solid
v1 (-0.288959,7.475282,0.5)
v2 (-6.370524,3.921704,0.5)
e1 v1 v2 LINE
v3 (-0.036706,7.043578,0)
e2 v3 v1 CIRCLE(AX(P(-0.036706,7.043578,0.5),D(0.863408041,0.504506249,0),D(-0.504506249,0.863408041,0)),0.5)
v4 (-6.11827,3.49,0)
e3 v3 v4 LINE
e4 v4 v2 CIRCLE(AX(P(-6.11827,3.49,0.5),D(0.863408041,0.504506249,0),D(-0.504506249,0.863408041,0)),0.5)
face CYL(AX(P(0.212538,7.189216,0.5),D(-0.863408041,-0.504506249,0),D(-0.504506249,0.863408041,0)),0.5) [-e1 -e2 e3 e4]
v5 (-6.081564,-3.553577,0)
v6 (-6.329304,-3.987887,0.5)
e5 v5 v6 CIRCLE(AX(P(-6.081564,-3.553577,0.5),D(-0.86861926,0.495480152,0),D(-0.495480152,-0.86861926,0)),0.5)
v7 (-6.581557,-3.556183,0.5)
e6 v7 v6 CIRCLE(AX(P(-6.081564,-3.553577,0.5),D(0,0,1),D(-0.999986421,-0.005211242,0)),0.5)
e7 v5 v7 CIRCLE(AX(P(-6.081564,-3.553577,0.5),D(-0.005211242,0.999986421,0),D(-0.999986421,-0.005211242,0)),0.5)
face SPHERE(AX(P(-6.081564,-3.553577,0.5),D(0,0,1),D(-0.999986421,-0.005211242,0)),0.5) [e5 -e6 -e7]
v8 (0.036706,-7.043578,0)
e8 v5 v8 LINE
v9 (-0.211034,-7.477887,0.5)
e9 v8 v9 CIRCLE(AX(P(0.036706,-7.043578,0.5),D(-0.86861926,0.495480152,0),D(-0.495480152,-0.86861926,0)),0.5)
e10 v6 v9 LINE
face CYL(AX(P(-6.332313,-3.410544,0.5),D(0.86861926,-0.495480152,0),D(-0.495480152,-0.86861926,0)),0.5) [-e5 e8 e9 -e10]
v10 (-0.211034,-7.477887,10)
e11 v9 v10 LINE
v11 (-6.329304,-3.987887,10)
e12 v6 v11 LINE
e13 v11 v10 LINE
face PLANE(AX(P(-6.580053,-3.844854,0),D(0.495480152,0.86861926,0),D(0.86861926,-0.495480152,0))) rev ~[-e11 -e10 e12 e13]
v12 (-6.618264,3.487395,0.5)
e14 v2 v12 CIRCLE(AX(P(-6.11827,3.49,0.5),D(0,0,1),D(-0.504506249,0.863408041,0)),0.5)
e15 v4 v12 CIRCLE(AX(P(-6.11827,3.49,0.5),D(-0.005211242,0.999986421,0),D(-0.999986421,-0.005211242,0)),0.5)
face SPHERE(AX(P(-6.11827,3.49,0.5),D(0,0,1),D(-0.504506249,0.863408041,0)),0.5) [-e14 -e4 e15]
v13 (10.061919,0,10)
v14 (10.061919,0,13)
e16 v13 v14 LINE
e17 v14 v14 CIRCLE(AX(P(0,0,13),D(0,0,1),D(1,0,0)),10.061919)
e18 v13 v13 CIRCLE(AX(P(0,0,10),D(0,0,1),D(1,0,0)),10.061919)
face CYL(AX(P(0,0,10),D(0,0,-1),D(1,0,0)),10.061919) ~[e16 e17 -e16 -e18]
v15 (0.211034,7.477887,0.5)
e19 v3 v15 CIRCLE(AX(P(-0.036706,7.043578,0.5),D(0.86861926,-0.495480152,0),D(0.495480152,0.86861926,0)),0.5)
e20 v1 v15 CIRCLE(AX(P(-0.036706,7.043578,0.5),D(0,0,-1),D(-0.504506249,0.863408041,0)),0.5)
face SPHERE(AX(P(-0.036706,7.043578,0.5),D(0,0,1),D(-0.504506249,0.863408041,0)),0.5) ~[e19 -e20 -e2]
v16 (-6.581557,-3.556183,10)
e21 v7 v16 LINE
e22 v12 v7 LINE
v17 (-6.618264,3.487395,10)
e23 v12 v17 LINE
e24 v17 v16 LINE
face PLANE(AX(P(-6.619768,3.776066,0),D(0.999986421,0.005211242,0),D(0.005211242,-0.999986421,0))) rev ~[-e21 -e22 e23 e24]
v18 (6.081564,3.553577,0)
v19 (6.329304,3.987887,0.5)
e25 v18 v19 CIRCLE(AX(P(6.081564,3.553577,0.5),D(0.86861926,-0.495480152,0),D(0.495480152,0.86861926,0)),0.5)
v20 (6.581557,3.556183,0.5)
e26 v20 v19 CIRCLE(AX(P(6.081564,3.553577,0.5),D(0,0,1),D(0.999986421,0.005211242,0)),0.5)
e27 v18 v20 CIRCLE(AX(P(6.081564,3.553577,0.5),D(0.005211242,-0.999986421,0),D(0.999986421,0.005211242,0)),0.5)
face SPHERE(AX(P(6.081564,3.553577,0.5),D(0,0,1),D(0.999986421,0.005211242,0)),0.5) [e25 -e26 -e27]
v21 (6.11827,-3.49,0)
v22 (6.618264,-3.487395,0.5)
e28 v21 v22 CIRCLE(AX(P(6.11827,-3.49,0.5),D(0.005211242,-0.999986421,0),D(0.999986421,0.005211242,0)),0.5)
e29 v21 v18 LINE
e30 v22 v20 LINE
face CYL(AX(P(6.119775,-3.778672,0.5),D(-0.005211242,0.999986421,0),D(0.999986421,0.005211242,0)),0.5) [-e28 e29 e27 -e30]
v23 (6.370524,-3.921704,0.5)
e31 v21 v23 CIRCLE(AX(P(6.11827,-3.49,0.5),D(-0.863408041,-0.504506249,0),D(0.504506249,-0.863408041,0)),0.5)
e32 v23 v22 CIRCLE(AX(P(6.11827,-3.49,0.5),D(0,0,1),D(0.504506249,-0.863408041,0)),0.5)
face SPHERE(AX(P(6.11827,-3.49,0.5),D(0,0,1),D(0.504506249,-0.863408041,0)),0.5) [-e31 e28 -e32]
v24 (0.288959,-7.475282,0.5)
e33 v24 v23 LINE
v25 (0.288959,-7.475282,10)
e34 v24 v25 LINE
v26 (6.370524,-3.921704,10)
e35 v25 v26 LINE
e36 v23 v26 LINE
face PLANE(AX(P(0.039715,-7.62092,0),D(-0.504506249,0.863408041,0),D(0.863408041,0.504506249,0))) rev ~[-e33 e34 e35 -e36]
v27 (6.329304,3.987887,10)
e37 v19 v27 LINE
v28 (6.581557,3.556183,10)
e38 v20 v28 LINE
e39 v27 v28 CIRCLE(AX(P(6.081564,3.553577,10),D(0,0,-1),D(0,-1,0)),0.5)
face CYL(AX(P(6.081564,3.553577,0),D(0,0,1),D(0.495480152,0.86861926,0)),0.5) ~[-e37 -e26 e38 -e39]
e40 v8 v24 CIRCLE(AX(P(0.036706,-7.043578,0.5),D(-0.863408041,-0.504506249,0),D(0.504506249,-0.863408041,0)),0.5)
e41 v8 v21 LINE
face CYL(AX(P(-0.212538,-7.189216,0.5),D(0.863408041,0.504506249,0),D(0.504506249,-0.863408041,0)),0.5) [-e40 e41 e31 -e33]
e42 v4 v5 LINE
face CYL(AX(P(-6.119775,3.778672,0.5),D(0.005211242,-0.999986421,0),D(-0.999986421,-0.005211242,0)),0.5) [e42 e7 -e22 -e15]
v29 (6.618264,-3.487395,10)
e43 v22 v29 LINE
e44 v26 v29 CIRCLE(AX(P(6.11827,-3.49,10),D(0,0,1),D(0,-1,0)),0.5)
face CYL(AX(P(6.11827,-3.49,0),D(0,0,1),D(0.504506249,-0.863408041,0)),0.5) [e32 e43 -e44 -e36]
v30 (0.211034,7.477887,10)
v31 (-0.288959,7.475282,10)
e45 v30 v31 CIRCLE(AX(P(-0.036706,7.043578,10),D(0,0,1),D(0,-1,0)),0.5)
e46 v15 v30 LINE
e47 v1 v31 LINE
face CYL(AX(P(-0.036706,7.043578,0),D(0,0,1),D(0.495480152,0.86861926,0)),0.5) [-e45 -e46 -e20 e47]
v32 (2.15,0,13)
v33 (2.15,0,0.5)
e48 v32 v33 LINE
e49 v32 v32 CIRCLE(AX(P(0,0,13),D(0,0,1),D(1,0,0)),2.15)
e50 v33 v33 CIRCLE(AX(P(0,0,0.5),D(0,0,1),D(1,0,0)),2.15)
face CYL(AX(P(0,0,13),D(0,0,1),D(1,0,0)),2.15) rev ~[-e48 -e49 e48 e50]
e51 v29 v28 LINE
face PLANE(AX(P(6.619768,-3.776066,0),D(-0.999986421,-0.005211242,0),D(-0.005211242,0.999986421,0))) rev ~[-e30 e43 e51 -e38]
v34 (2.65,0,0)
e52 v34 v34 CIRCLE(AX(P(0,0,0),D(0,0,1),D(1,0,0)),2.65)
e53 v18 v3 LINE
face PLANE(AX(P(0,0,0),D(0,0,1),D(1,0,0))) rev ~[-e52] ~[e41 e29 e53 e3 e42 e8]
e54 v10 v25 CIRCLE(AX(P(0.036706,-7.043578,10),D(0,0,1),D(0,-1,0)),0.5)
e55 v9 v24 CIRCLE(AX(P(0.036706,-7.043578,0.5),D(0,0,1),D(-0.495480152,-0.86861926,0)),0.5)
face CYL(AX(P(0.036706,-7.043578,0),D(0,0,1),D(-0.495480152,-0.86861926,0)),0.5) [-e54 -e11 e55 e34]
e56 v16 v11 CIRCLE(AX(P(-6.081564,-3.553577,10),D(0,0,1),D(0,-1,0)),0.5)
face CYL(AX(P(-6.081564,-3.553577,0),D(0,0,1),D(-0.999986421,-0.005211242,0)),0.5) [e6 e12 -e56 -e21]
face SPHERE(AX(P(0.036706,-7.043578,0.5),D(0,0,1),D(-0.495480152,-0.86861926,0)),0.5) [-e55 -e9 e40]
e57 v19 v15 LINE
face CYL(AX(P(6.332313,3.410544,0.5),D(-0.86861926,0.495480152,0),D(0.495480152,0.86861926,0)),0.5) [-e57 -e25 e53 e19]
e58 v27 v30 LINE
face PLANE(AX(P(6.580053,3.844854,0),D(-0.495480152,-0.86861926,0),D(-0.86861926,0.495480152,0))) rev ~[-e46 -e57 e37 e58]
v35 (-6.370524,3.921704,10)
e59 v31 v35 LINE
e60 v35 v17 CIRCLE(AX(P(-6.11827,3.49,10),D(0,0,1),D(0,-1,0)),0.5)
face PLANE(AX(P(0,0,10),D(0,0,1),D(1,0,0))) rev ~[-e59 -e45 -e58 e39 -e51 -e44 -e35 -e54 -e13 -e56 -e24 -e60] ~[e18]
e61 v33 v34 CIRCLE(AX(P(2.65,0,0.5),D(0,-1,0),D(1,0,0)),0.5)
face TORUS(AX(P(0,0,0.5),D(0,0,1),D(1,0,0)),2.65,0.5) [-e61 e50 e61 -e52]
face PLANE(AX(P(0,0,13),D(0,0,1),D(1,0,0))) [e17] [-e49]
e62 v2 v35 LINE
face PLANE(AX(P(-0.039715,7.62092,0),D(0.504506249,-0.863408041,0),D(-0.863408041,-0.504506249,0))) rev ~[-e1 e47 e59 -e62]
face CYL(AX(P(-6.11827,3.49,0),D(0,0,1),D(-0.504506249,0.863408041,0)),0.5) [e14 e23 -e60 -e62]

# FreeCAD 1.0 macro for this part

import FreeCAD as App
import Part
import Sketcher

V = App.Vector


def edges_at(feature, points):
    """Names of the edges that pass closest to the given points."""
    edges = feature.Shape.Edges
    near = lambda p: min(range(len(edges)), key=lambda i: edges[i].distToShape(Part.Vertex(*p))[0])
    return sorted({f"Edge{near(p) + 1}" for p in points})

doc = App.newDocument("Part")
body = doc.addObject("PartDesign::Body", "Body")

sketch1 = body.newObject("Sketcher::SketchObject", "Sketch")
sketch1.AttachmentSupport = (doc.getObject("XY_Plane"), [""])
sketch1.MapMode = "FlatFace"
sketch1.addGeometry([
    Part.LineSegment(V(7, 4, 0), V(0, 8, 0)),
    Part.LineSegment(V(0, 8, 0), V(-7, 4, 0)),
    Part.LineSegment(V(-7, 4, 0), V(-7, -4, 0)),
    Part.LineSegment(V(-7, -4, 0), V(0, -8, 0)),
    Part.LineSegment(V(0, -8, 0), V(7, -4, 0)),
    Part.LineSegment(V(7, -4, 0), V(7, 4, 0)),
], False)
sketch1.addConstraint([
    Sketcher.Constraint("Coincident", 0, 2, 1, 1),
    Sketcher.Constraint("Coincident", 1, 2, 2, 1),
    Sketcher.Constraint("Coincident", 2, 2, 3, 1),
    Sketcher.Constraint("Coincident", 3, 2, 4, 1),
    Sketcher.Constraint("Coincident", 4, 2, 5, 1),
    Sketcher.Constraint("Coincident", 5, 2, 0, 1),
    Sketcher.Constraint("Symmetric", 0, 2, 3, 2, -1, 1),
    Sketcher.Constraint("Symmetric", 1, 2, 4, 2, -1, 1),
    Sketcher.Constraint("Symmetric", 2, 2, 5, 2, -1, 1),
    Sketcher.Constraint("Equal", 0, 1),
    Sketcher.Constraint("Equal", 1, 2),
    Sketcher.Constraint("DistanceY", -1, 1, 0, 2, 7.62092),
    Sketcher.Constraint("DistanceY", 2, 2, 1, 2, 7.62092),
    Sketcher.Constraint("DistanceX", 2, 2, 0, 2, 6.540338),
    Sketcher.Constraint("DistanceX", 2, 2, 3, 2, 6.619768),
])
pad1 = body.newObject("PartDesign::Pad", "Pad")
pad1.Profile = sketch1
pad1.Length = 10

sketch2 = body.newObject("Sketcher::SketchObject", "Sketch001")
sketch2.AttachmentSupport = (doc.getObject("XY_Plane"), [""])
sketch2.MapMode = "FlatFace"
sketch2.AttachmentOffset = App.Placement(V(0, 0, 10), App.Rotation())
sketch2.addGeometry(Part.Circle(V(0, 0, 0), V(0, 0, 1), 10), False)
sketch2.addConstraint([
    Sketcher.Constraint("Coincident", 0, 3, -1, 1),
    Sketcher.Constraint("Diameter", 0, 20.123838),
])
pad2 = body.newObject("PartDesign::Pad", "Pad001")
pad2.Profile = sketch2
pad2.Length = 3

sketch3 = body.newObject("Sketcher::SketchObject", "Sketch002")
sketch3.AttachmentSupport = (doc.getObject("XY_Plane"), [""])
sketch3.MapMode = "FlatFace"
sketch3.AttachmentOffset = App.Placement(V(0, 0, 13), App.Rotation())
sketch3.addGeometry(Part.Circle(V(0, 0, 0), V(0, 0, 1), 2.1), False)
sketch3.addConstraint([
    Sketcher.Constraint("Coincident", 0, 3, -1, 1),
    Sketcher.Constraint("Diameter", 0, 4.3),
])
pocket1 = body.newObject("PartDesign::Pocket", "Pocket")
pocket1.Profile = sketch3
pocket1.Length = 25
doc.recompute()

fillet = body.newObject("PartDesign::Fillet", "Fillet")
fillet.Base = (pocket1, edges_at(pocket1, [
    (-0.04, 7.621, 5),
    (6.58, 3.845, 5),
    (6.62, -3.776, 5),
    (0.04, -7.621, 5),
    (-6.58, -3.845, 5),
    (-6.62, 3.776, 5),
    (-3.33, 5.698, 0),
    (-6.6, -0.034, 0),
    (-3.27, -5.733, 0),
    (3.33, -5.698, 0),
    (6.6, 0.034, 0),
    (3.27, 5.733, 0),
    (-2.15, 0, 0),
]))
fillet.Radius = 0.5

doc.recompute()
